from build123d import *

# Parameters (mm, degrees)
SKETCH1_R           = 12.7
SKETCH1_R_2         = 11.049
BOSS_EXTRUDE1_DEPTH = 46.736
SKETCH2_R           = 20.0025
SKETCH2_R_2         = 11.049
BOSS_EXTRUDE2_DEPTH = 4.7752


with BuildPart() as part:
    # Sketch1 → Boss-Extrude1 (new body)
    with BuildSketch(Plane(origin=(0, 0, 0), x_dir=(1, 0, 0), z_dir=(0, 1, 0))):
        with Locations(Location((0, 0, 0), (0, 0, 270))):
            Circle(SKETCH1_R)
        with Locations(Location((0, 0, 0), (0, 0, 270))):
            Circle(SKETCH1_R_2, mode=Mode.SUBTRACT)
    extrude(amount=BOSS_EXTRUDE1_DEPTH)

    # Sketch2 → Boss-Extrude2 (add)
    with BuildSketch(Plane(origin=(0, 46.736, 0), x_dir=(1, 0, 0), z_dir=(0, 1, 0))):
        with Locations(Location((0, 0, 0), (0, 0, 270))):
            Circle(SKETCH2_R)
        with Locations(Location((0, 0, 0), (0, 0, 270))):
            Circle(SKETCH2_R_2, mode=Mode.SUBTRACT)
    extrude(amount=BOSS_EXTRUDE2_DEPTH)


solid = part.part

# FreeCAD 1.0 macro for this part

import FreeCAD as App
import Part
import Sketcher
Q = App.Units.Quantity

doc = App.newDocument("Part")
body = doc.addObject("PartDesign::Body", "Body")

# Sketch on XZ plane
sketch1 = doc.addObject("Sketcher::SketchObject", "Sketch")
body.addObject(sketch1)
sketch1.AttachmentSupport = (doc.XZ_Plane, [""])
sketch1.MapMode = "FlatFace"
sketch1.addGeometry([
    Part.Circle(App.Vector(0, 0, 0), App.Vector(0, 0, 1), 12.7),
    Part.Circle(App.Vector(0, 0, 0), App.Vector(0, 0, 1), 11.049),
], False)
sketch1.addConstraint([
    Sketcher.Constraint("Coincident", 0, 3, -1, 1),
    Sketcher.Constraint("Coincident", 1, 3, -1, 1),
    Sketcher.Constraint("Diameter", 0, Q("1 in")),
    Sketcher.Constraint("Diameter", 1, Q("0.87 in")),
])
pad1 = doc.addObject("PartDesign::Pad", "Pad")
body.addObject(pad1)
pad1.Profile = sketch1
pad1.Length = Q("1.84 in")
pad1.Reversed = True

# Sketch on XZ plane
sketch2 = doc.addObject("Sketcher::SketchObject", "Sketch001")
body.addObject(sketch2)
sketch2.AttachmentSupport = (doc.XZ_Plane, [""])
sketch2.MapMode = "FlatFace"
sketch2.AttachmentOffset = App.Placement(App.Vector(0, 0, -1.84 * 25.4), App.Rotation())
sketch2.addGeometry([
    Part.Circle(App.Vector(0, 0, 0), App.Vector(0, 0, 1), 20.0025),
    Part.Circle(App.Vector(0, 0, 0), App.Vector(0, 0, 1), 11.049),
], False)
sketch2.addConstraint([
    Sketcher.Constraint("Coincident", 0, 3, -1, 1),
    Sketcher.Constraint("Coincident", 1, 3, -1, 1),
    Sketcher.Constraint("Diameter", 1, Q("0.87 in")),
    Sketcher.Constraint("Diameter", 0, Q("1.575 in")),
])
pad2 = doc.addObject("PartDesign::Pad", "Pad001")
body.addObject(pad2)
pad2.Profile = sketch2
pad2.Length = Q("0.188 in")
pad2.Reversed = True

doc.recompute()
